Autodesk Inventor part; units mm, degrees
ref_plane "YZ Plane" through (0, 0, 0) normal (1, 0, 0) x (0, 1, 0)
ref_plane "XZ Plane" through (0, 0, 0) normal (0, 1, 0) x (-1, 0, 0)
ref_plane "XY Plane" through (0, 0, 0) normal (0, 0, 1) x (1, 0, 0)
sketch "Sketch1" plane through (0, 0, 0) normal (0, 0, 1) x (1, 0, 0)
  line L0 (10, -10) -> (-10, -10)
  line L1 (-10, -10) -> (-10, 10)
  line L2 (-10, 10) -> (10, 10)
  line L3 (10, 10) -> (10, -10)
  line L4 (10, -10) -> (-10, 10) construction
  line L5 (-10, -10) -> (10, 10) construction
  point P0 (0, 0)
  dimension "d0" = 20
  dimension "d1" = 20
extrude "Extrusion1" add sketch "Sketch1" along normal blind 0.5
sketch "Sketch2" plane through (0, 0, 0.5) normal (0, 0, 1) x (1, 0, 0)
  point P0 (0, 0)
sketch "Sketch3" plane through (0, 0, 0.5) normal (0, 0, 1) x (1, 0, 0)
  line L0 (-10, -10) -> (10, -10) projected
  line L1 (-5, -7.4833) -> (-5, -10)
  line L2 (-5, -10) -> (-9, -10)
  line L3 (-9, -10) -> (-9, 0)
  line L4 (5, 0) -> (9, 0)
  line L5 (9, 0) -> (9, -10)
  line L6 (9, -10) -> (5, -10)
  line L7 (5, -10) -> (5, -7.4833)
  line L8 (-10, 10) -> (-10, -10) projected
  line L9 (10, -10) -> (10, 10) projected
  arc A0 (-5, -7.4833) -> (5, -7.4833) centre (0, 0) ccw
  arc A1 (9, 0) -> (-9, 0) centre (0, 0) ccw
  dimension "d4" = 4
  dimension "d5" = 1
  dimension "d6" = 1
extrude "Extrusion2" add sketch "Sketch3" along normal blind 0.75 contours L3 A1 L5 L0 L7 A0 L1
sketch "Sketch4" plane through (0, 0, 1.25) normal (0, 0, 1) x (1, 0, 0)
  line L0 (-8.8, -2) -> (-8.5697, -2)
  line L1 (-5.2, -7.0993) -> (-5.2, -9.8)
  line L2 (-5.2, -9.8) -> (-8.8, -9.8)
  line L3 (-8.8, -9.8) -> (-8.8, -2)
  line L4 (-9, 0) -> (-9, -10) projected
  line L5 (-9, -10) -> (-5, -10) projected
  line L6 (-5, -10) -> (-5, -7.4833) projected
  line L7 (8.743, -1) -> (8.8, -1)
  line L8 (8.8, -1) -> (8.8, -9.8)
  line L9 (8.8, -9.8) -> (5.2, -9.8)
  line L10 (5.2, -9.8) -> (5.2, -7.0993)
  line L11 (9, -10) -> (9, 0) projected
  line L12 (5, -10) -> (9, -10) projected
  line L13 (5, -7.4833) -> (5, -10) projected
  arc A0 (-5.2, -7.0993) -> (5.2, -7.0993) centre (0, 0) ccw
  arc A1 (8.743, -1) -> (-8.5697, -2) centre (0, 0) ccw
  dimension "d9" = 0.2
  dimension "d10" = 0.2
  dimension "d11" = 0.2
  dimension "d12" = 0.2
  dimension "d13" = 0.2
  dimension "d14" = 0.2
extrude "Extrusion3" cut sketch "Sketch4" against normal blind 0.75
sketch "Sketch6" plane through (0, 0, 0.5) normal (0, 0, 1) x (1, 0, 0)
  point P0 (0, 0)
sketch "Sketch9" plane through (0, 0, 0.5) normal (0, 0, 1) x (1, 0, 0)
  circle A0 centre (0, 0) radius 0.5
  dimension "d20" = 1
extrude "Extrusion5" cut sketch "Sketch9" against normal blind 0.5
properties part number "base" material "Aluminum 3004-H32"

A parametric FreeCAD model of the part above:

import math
import FreeCAD as App
import Part
import Sketcher

V = App.Vector


def add_polygon(sketch, points):
    """Adds a closed chain of lines whose ends are joined by coincident constraints."""
    first, n = sketch.GeometryCount, len(points)
    for a, b in zip(points, points[1:] + points[:1]):
        sketch.addGeometry(Part.LineSegment(App.Vector(*a, 0), App.Vector(*b, 0)), False)
    for i in range(n):
        sketch.addConstraint(Sketcher.Constraint("Coincident", first + i, 2, first + (i + 1) % n, 1))

doc = App.newDocument("Part")
body = doc.addObject("PartDesign::Body", "Body")

sketch1 = body.newObject("Sketcher::SketchObject", "Sketch")
sketch1.AttachmentSupport = (doc.getObject("XY_Plane"), [""])
sketch1.MapMode = "FlatFace"
add_polygon(sketch1, [(-10, -10), (10, -10), (10, 10), (-10, 10)])
sketch1.addConstraint(Sketcher.Constraint("Horizontal", 0))
sketch1.addConstraint(Sketcher.Constraint("Vertical", 1))
sketch1.addConstraint(Sketcher.Constraint("Horizontal", 2))
sketch1.addConstraint(Sketcher.Constraint("Vertical", 3))
sketch1.addConstraint(Sketcher.Constraint("Symmetric", 0, 2, 2, 2, -1, 1))
sketch1.addConstraint(Sketcher.Constraint("Equal", 2, 1))
sketch1.addConstraint(Sketcher.Constraint("DistanceX", 0, 1, 0, 2, 20.0))
pad1 = body.newObject("PartDesign::Pad", "Pad")
pad1.Profile = sketch1
pad1.Length = 0.5

sketch2 = body.newObject("Sketcher::SketchObject", "Sketch001")
sketch2.AttachmentSupport = (doc.getObject("XY_Plane"), [""])
sketch2.MapMode = "FlatFace"
sketch2.AttachmentOffset = App.Placement(V(0, 0, 0.5), App.Rotation())
sketch2.addGeometry(Part.LineSegment(V(-9, 0, 0), V(-9, -10, 0)), False)
sketch2.addGeometry(Part.LineSegment(V(-9, -10, 0), V(-5, -10, 0)), False)
sketch2.addGeometry(Part.LineSegment(V(-5, -10, 0), V(-5, -7.4833, 0)), False)
sketch2.addGeometry(Part.ArcOfCircle(Part.Circle(V(0, 0, 0), V(0, 0, 1), 8.999988), math.radians(-123.749041), math.radians(-56.250959)), False)
sketch2.addGeometry(Part.LineSegment(V(5, -7.4833, 0), V(5, -10, 0)), False)
sketch2.addGeometry(Part.LineSegment(V(5, -10, 0), V(9, -10, 0)), False)
sketch2.addGeometry(Part.LineSegment(V(9, -10, 0), V(9, 0, 0)), False)
sketch2.addGeometry(Part.ArcOfCircle(Part.Circle(V(0, 0, 0), V(0, 0, 1), 9), math.radians(0), math.radians(180)), False)
sketch2.addConstraint(Sketcher.Constraint("Coincident", 0, 2, 1, 1))
sketch2.addConstraint(Sketcher.Constraint("Coincident", 1, 2, 2, 1))
sketch2.addConstraint(Sketcher.Constraint("Coincident", 2, 2, 3, 1))
sketch2.addConstraint(Sketcher.Constraint("Coincident", 3, 2, 4, 1))
sketch2.addConstraint(Sketcher.Constraint("Coincident", 4, 2, 5, 1))
sketch2.addConstraint(Sketcher.Constraint("Coincident", 5, 2, 6, 1))
sketch2.addConstraint(Sketcher.Constraint("Tangent", 6, 2, 7, 1))
sketch2.addConstraint(Sketcher.Constraint("Tangent", 7, 2, 0, 1))
sketch2.addConstraint(Sketcher.Constraint("Vertical", 0))
sketch2.addConstraint(Sketcher.Constraint("Horizontal", 1))
sketch2.addConstraint(Sketcher.Constraint("Vertical", 2))
sketch2.addConstraint(Sketcher.Constraint("Vertical", 4))
sketch2.addConstraint(Sketcher.Constraint("Horizontal", 5))
sketch2.addConstraint(Sketcher.Constraint("Vertical", 6))
sketch2.addConstraint(Sketcher.Constraint("Coincident", 3, 3, -1, 1))
sketch2.addConstraint(Sketcher.Constraint("Coincident", 7, 3, -1, 1))
sketch2.addConstraint(Sketcher.Constraint("Equal", 3, 7))
sketch2.addConstraint(Sketcher.Constraint("Symmetric", 1, 2, 4, 2, -2))
sketch2.addConstraint(Sketcher.Constraint("DistanceX", 1, 1, 1, 2, 4.0))
sketch2.addConstraint(Sketcher.Constraint("Radius", 3, 9.0))
sketch2.addConstraint(Sketcher.Constraint("DistanceY", 0, 2, 0, 1, 10.0))
pad2 = body.newObject("PartDesign::Pad", "Pad001")
pad2.Profile = sketch2
pad2.Length = 0.75

sketch3 = body.newObject("Sketcher::SketchObject", "Sketch002")
sketch3.AttachmentSupport = (doc.getObject("XY_Plane"), [""])
sketch3.MapMode = "FlatFace"
sketch3.AttachmentOffset = App.Placement(V(0, 0, 1.25), App.Rotation())
sketch3.addGeometry(Part.LineSegment(V(-8.5697, -2, 0), V(-8.8, -2, 0)), False)
sketch3.addGeometry(Part.LineSegment(V(-8.8, -2, 0), V(-8.8, -9.8, 0)), False)
sketch3.addGeometry(Part.LineSegment(V(-8.8, -9.8, 0), V(-5.2, -9.8, 0)), False)
sketch3.addGeometry(Part.LineSegment(V(-5.2, -9.8, 0), V(-5.2, -7.0993, 0)), False)
sketch3.addGeometry(Part.ArcOfCircle(Part.Circle(V(0, 0, 0), V(0, 0, 1), 8.800003), math.radians(-126.22153), math.radians(-53.77847)), False)
sketch3.addGeometry(Part.LineSegment(V(5.2, -7.0993, 0), V(5.2, -9.8, 0)), False)
sketch3.addGeometry(Part.LineSegment(V(5.2, -9.8, 0), V(8.8, -9.8, 0)), False)
sketch3.addGeometry(Part.LineSegment(V(8.8, -9.8, 0), V(8.8, -1, 0)), False)
sketch3.addGeometry(Part.LineSegment(V(8.8, -1, 0), V(8.743, -1, 0)), False)
sketch3.addGeometry(Part.ArcOfCircle(Part.Circle(V(0, 0, 0), V(0, 0, 1), 8.800003), math.radians(-6.524977), math.radians(193.13658)), False)
sketch3.addConstraint(Sketcher.Constraint("Coincident", 0, 2, 1, 1))
sketch3.addConstraint(Sketcher.Constraint("Coincident", 1, 2, 2, 1))
sketch3.addConstraint(Sketcher.Constraint("Coincident", 2, 2, 3, 1))
sketch3.addConstraint(Sketcher.Constraint("Coincident", 3, 2, 4, 1))
sketch3.addConstraint(Sketcher.Constraint("Coincident", 4, 2, 5, 1))
sketch3.addConstraint(Sketcher.Constraint("Coincident", 5, 2, 6, 1))
sketch3.addConstraint(Sketcher.Constraint("Coincident", 6, 2, 7, 1))
sketch3.addConstraint(Sketcher.Constraint("Coincident", 7, 2, 8, 1))
sketch3.addConstraint(Sketcher.Constraint("Coincident", 8, 2, 9, 1))
sketch3.addConstraint(Sketcher.Constraint("Coincident", 9, 2, 0, 1))
sketch3.addConstraint(Sketcher.Constraint("Horizontal", 0))
sketch3.addConstraint(Sketcher.Constraint("Vertical", 1))
sketch3.addConstraint(Sketcher.Constraint("Horizontal", 2))
sketch3.addConstraint(Sketcher.Constraint("Vertical", 3))
sketch3.addConstraint(Sketcher.Constraint("Vertical", 5))
sketch3.addConstraint(Sketcher.Constraint("Horizontal", 6))
sketch3.addConstraint(Sketcher.Constraint("Vertical", 7))
sketch3.addConstraint(Sketcher.Constraint("Horizontal", 8))
sketch3.addConstraint(Sketcher.Constraint("Coincident", 4, 3, -1, 1))
sketch3.addConstraint(Sketcher.Constraint("Coincident", 9, 3, -1, 1))
sketch3.addConstraint(Sketcher.Constraint("Equal", 4, 9))
sketch3.addConstraint(Sketcher.Constraint("Symmetric", 2, 2, 5, 2, -2))
sketch3.addConstraint(Sketcher.Constraint("Equal", 2, 6))
sketch3.addConstraint(Sketcher.Constraint("Radius", 4, 8.8))
sketch3.addConstraint(Sketcher.Constraint("DistanceX", 2, 1, 2, 2, 3.6))
sketch3.addConstraint(Sketcher.Constraint("DistanceY", 1, 2, 1, 1, 7.8))
sketch3.addConstraint(Sketcher.Constraint("DistanceY", 7, 1, 7, 2, 8.8))
sketch3.addConstraint(Sketcher.Constraint("DistanceY", 0, 2, -1, 1, 2.0))
sketch3.addConstraint(Sketcher.Constraint("DistanceX", 1, 2, 4, 2, 14.0))
pocket1 = body.newObject("PartDesign::Pocket", "Pocket")
pocket1.Profile = sketch3
pocket1.Length = 0.75

sketch4 = body.newObject("Sketcher::SketchObject", "Sketch003")
sketch4.AttachmentSupport = (doc.getObject("XY_Plane"), [""])
sketch4.MapMode = "FlatFace"
sketch4.AttachmentOffset = App.Placement(V(0, 0, 0.5), App.Rotation())
sketch4.addGeometry(Part.Circle(V(0, 0, 0), V(0, 0, 1), 0.5), False)
sketch4.addConstraint(Sketcher.Constraint("Coincident", 0, 3, -1, 1))
sketch4.addConstraint(Sketcher.Constraint("Diameter", 0, 1.0))
pocket2 = body.newObject("PartDesign::Pocket", "Pocket001")
pocket2.Profile = sketch4
pocket2.Length = 0.5

doc.recompute()
